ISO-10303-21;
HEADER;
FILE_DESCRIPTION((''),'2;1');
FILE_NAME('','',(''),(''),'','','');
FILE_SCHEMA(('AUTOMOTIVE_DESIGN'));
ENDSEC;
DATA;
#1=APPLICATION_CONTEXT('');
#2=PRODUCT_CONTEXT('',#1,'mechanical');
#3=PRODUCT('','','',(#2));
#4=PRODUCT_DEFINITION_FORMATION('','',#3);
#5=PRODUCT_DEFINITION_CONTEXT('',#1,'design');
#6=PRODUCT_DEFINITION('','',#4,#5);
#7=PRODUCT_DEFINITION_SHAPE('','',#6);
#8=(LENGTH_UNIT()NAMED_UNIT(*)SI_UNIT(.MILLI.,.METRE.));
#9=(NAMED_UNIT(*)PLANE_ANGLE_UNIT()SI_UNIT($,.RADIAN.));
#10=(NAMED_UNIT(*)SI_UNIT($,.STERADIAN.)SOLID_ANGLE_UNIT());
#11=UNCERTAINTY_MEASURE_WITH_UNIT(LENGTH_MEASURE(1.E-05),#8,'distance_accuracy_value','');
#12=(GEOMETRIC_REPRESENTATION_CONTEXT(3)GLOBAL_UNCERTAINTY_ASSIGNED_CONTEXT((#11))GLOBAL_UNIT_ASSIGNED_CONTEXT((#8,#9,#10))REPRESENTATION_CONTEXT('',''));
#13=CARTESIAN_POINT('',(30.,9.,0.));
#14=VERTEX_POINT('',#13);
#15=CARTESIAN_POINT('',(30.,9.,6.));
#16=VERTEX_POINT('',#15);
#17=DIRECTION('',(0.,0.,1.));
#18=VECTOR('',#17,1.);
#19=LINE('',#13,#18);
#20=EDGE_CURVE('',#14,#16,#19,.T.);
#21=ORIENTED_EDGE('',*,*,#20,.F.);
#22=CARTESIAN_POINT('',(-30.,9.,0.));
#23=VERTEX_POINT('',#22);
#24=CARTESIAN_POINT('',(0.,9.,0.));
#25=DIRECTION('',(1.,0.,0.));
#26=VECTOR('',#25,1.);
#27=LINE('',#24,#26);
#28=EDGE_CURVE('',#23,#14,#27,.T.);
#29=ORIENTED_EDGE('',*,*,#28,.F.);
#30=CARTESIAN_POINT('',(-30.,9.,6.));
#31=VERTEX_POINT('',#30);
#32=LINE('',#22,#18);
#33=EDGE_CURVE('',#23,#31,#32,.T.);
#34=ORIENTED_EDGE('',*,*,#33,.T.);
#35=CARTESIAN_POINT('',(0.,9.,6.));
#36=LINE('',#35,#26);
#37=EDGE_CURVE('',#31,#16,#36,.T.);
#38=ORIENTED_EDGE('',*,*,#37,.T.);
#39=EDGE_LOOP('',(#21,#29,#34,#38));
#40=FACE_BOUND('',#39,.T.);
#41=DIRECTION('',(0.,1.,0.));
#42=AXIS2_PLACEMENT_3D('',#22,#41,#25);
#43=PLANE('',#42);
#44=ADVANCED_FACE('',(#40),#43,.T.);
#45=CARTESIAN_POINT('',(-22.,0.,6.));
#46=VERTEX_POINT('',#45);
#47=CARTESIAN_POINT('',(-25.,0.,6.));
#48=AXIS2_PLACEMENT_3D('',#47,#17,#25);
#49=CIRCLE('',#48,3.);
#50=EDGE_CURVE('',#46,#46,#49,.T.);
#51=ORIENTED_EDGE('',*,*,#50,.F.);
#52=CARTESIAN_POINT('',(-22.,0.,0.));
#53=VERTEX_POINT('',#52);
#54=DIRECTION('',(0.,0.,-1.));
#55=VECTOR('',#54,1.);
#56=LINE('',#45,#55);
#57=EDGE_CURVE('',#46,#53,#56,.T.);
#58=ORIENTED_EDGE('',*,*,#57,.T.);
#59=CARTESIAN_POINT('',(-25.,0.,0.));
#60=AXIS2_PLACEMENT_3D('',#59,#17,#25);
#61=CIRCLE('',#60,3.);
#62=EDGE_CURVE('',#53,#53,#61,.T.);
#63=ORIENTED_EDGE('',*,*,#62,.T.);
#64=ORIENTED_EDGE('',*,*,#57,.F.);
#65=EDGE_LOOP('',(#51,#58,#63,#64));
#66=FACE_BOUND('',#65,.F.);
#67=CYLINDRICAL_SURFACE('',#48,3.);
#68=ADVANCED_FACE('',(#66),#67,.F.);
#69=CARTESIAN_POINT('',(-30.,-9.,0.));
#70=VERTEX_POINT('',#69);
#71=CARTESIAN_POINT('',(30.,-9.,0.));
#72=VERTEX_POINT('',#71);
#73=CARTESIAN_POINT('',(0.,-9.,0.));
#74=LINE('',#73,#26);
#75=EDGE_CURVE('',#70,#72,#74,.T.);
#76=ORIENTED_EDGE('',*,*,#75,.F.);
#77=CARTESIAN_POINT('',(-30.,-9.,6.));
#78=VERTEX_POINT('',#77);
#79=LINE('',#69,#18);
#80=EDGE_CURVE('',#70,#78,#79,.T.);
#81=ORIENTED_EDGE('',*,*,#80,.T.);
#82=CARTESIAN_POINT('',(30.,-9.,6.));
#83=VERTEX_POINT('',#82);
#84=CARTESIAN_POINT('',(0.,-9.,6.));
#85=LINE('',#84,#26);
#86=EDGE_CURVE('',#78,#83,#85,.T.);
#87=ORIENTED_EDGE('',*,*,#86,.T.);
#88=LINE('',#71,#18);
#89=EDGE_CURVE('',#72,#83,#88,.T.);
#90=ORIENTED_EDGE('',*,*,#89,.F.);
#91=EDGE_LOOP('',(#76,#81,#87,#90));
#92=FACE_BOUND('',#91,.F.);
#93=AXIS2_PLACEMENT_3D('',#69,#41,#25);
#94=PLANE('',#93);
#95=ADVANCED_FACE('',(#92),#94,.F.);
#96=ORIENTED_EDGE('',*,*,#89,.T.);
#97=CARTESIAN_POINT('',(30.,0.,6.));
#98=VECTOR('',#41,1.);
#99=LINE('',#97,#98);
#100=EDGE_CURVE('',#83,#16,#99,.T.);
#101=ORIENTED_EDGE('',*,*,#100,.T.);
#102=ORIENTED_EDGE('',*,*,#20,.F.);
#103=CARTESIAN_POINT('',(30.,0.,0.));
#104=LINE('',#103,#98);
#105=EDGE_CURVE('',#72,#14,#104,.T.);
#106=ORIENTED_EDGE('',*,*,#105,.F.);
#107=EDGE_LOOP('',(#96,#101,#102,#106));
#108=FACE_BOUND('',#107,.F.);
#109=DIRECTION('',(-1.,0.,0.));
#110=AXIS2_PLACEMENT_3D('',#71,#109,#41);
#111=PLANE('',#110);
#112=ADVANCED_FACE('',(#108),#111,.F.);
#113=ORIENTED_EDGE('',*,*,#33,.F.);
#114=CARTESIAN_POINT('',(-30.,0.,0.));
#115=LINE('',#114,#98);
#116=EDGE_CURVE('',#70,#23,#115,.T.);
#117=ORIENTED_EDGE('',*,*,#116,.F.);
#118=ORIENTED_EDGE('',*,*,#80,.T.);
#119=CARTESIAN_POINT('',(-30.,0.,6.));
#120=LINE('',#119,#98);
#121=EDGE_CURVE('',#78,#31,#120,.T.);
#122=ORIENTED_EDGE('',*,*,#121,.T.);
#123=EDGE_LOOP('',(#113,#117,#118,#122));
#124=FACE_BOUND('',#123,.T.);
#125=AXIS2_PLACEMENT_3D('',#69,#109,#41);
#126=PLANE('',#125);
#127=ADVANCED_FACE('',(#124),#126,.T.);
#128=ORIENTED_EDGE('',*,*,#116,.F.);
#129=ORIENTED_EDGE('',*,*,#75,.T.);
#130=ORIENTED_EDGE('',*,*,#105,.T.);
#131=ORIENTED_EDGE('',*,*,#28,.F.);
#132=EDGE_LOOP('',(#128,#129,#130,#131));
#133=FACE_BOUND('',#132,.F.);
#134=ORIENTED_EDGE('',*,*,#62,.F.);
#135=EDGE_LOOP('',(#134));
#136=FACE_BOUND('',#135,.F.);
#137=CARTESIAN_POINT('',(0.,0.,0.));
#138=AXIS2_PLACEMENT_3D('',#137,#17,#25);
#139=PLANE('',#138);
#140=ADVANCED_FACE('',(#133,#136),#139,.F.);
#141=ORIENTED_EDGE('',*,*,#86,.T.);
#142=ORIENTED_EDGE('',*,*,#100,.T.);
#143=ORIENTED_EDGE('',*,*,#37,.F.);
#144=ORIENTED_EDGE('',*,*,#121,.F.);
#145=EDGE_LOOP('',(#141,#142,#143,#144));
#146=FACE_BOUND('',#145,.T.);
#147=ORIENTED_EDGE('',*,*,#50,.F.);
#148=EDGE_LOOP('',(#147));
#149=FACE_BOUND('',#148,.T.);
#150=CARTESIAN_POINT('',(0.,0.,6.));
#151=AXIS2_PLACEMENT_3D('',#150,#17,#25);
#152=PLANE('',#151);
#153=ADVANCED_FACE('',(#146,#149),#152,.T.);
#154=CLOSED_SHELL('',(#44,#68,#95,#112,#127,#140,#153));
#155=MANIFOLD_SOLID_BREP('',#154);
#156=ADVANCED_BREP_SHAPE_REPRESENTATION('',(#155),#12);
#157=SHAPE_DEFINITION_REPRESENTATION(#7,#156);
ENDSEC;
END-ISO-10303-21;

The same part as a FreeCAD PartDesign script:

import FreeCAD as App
import Part
import Sketcher


def add_polygon(sketch, points):
    """Adds a closed chain of lines whose ends are joined by coincident constraints."""
    first, n = sketch.GeometryCount, len(points)
    for a, b in zip(points, points[1:] + points[:1]):
        sketch.addGeometry(Part.LineSegment(App.Vector(*a, 0), App.Vector(*b, 0)), False)
    for i in range(n):
        sketch.addConstraint(Sketcher.Constraint("Coincident", first + i, 2, first + (i + 1) % n, 1))

doc = App.newDocument("Part")
body = doc.addObject("PartDesign::Body", "Body")

# Sketch on XY plane
sketch1 = body.newObject("Sketcher::SketchObject", "Sketch")
sketch1.AttachmentSupport = (doc.getObject("XY_Plane"), [""])
sketch1.MapMode = "FlatFace"
add_polygon(sketch1, [(-30, 9), (-30, -9), (30, -9), (30, 9)])  # lines 0-3
sketch1.addConstraint([
    Sketcher.Constraint("Vertical", 0),
    Sketcher.Constraint("Horizontal", 1),
    Sketcher.Constraint("Vertical", 2),
    Sketcher.Constraint("Horizontal", 3),
    Sketcher.Constraint("Symmetric", 0, 2, 2, 2, -1, 1),
    Sketcher.Constraint("DistanceX", 1, 1, 1, 2, 60.0),
    Sketcher.Constraint("DistanceY", 0, 2, 0, 1, 18.0),
])
pad1 = body.newObject("PartDesign::Pad", "Pad")
pad1.Profile = sketch1
pad1.Length = 6

# Sketch on XY plane
sketch2 = body.newObject("Sketcher::SketchObject", "Sketch001")
sketch2.AttachmentSupport = (doc.getObject("XY_Plane"), [""])
sketch2.MapMode = "FlatFace"
sketch2.AttachmentOffset = App.Placement(App.Vector(0, 0, 6), App.Rotation())
sketch2.addGeometry(Part.Circle(App.Vector(-25, 0, 0), App.Vector(0, 0, 1), 3), False)
sketch2.addConstraint([
    Sketcher.Constraint("PointOnObject", 0, 3, -1),
    Sketcher.Constraint("Diameter", 0, 6.0),
    Sketcher.Constraint("DistanceX", 0, 3, -1, 1, 25.0),
])
pocket1 = body.newObject("PartDesign::Pocket", "Pocket")
pocket1.Profile = sketch2
pocket1.Type = "ThroughAll"

doc.recompute()
